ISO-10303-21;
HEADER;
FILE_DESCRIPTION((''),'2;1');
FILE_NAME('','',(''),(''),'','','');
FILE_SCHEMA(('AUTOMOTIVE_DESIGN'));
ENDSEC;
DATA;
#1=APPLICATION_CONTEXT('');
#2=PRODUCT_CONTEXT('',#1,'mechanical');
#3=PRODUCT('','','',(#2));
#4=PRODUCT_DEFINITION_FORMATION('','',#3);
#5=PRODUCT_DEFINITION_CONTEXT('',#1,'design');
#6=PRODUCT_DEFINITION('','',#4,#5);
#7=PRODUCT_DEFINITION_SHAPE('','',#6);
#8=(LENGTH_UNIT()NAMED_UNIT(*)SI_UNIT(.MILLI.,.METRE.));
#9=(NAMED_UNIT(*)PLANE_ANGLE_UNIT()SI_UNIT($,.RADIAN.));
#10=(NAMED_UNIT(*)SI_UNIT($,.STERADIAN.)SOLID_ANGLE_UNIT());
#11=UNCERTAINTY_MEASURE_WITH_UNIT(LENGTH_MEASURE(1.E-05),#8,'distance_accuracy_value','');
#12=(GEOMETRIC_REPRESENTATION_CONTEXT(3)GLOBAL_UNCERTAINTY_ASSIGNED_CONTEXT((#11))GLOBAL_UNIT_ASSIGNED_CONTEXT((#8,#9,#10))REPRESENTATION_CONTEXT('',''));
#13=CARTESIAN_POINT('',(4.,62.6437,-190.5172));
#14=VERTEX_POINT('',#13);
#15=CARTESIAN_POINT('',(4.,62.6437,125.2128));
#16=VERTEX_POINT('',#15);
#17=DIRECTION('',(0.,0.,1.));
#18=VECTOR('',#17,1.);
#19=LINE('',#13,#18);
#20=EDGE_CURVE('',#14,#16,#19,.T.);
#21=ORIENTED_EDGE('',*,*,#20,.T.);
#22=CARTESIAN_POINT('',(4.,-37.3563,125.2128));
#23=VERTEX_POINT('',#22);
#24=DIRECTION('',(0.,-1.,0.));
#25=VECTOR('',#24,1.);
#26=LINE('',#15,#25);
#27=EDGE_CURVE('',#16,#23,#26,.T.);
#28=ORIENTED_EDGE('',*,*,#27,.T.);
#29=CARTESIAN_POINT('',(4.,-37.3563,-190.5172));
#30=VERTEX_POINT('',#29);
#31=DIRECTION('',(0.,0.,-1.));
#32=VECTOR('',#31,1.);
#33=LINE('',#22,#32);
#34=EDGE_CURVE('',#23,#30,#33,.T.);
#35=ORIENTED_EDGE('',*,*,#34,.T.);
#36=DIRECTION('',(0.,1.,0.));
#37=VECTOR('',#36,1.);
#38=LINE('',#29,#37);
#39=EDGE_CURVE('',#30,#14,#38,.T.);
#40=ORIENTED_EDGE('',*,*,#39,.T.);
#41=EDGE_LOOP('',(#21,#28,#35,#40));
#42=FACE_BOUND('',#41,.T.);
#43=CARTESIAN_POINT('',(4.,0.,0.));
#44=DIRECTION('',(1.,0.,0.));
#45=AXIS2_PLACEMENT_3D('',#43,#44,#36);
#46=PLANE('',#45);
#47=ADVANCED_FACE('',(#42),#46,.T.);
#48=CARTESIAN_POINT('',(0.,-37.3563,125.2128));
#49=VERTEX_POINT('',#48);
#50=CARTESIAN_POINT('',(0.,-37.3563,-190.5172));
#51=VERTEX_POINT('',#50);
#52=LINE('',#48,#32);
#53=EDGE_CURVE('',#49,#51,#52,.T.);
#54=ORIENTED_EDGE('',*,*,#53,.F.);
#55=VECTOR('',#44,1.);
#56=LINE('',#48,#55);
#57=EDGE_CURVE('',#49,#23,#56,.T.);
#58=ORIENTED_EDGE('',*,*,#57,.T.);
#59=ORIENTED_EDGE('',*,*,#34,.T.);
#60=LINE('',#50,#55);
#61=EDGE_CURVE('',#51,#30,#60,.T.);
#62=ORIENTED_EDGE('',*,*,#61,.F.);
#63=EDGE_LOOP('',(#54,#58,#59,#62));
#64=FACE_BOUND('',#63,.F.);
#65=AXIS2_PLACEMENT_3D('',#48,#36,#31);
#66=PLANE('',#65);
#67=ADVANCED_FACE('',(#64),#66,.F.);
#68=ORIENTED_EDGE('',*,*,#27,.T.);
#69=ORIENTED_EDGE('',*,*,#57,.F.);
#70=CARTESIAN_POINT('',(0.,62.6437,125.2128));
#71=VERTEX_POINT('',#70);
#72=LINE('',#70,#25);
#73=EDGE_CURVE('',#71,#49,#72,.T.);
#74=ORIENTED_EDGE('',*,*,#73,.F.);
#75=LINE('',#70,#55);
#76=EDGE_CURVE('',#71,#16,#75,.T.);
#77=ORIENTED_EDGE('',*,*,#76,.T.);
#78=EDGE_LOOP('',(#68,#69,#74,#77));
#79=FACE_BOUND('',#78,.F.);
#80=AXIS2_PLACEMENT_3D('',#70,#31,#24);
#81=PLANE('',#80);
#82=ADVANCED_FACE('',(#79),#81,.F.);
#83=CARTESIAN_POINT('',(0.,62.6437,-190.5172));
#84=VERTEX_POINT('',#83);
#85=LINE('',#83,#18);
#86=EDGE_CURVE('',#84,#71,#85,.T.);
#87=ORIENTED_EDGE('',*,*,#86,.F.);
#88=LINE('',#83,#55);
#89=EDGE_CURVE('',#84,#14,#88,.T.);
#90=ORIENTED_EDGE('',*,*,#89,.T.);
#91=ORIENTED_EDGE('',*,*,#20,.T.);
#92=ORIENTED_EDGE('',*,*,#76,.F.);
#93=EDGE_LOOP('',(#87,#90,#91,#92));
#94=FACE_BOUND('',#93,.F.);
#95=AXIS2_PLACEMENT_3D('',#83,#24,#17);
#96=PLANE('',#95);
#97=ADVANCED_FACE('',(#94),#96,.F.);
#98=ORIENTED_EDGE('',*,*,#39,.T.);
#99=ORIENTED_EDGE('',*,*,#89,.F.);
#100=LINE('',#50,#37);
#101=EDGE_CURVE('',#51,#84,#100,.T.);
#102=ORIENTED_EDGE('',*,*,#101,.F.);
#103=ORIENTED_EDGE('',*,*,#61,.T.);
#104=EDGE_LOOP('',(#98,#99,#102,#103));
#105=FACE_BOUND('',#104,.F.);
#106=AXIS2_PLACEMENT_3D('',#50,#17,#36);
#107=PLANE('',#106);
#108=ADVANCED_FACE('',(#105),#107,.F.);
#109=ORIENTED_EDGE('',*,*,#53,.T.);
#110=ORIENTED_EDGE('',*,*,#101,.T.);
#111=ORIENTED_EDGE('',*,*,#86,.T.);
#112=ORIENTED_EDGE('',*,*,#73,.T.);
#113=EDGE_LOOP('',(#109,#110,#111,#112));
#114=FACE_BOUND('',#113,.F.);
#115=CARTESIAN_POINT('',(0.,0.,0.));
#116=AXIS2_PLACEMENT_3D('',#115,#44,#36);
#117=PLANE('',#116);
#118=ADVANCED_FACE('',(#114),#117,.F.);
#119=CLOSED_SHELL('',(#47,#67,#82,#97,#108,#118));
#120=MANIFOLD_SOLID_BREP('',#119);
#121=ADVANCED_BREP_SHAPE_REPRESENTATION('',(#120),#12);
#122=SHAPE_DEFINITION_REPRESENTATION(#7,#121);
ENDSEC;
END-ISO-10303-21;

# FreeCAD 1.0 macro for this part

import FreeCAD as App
import Part
import Sketcher


def add_polygon(sketch, points):
    """Adds a closed chain of lines whose ends are joined by coincident constraints."""
    first, n = sketch.GeometryCount, len(points)
    for a, b in zip(points, points[1:] + points[:1]):
        sketch.addGeometry(Part.LineSegment(App.Vector(*a, 0), App.Vector(*b, 0)), False)
    for i in range(n):
        sketch.addConstraint(Sketcher.Constraint("Coincident", first + i, 2, first + (i + 1) % n, 1))

doc = App.newDocument("Part")
body = doc.addObject("PartDesign::Body", "Body")

sketch1 = doc.addObject("Sketcher::SketchObject", "Sketch")
body.addObject(sketch1)
sketch1.AttachmentSupport = (doc.YZ_Plane, [""])
sketch1.MapMode = "FlatFace"
add_polygon(sketch1, [(63, -191), (63, 125), (-37, 125), (-37, -191)])
sketch1.addConstraint([
    Sketcher.Constraint("Vertical", 0),
    Sketcher.Constraint("Horizontal", 1),
    Sketcher.Constraint("Vertical", 2),
    Sketcher.Constraint("Horizontal", 3),
    Sketcher.Constraint("DistanceX", 1, 2, 1, 1, 100.0),
    Sketcher.Constraint("DistanceY", 0, 1, 0, 2, 315.73),
    Sketcher.Constraint("DistanceX", -1, 1, 0, 2, 62.6437),
    Sketcher.Constraint("DistanceY", -1, 1, 0, 2, 125.2128),
])
pad1 = doc.addObject("PartDesign::Pad", "Pad")
body.addObject(pad1)
pad1.Profile = sketch1
pad1.Length = 4

doc.recompute()
